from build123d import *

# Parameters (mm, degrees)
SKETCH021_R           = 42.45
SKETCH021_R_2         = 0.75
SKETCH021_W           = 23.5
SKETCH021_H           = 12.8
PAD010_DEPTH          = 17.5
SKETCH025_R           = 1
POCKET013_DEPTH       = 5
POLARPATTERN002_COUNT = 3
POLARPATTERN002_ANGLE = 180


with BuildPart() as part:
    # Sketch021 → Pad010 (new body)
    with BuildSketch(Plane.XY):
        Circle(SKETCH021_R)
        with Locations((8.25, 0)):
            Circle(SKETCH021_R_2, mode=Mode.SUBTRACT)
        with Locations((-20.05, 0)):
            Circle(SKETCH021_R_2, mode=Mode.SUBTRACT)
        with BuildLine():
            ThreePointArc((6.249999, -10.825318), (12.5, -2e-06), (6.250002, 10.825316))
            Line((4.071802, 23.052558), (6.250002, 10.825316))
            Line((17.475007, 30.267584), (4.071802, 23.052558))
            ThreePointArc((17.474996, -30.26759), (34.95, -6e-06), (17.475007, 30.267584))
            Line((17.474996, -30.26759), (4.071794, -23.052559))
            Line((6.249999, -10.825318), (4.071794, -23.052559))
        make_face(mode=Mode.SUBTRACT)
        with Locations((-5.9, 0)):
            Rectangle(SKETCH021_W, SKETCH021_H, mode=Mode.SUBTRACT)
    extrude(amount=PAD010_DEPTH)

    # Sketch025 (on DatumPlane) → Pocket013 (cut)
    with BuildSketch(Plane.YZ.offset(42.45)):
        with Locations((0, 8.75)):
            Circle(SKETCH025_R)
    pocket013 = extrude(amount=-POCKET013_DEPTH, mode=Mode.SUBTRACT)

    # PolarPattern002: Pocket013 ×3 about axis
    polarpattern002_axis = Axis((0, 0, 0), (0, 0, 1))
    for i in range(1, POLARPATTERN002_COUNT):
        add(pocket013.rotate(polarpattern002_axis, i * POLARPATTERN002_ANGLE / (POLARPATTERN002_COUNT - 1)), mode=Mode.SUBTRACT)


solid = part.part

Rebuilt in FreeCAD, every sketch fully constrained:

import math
import FreeCAD as App
import Part
import Sketcher


def add_polygon(sketch, points):
    """Adds a closed chain of lines whose ends are joined by coincident constraints."""
    first, n = sketch.GeometryCount, len(points)
    for a, b in zip(points, points[1:] + points[:1]):
        sketch.addGeometry(Part.LineSegment(App.Vector(*a, 0), App.Vector(*b, 0)), False)
    for i in range(n):
        sketch.addConstraint(Sketcher.Constraint("Coincident", first + i, 2, first + (i + 1) % n, 1))

doc = App.newDocument("Part")
body = doc.addObject("PartDesign::Body", "Body")

# Sketch on XY plane
sketch1 = doc.addObject("Sketcher::SketchObject", "Sketch")
body.addObject(sketch1)
sketch1.AttachmentSupport = (doc.XY_Plane, [""])
sketch1.MapMode = "FlatFace"
sketch1.addGeometry(Part.Circle(App.Vector(0, 0, 0), App.Vector(0, 0, 1), 42.45), False)  # 0
sketch1.addGeometry(Part.LineSegment(App.Vector(4.071794, -23.052559, 0), App.Vector(6.249999, -10.825318, 0)), False)  # 1
sketch1.addGeometry(Part.ArcOfCircle(Part.Circle(App.Vector(0, 0, 0), App.Vector(0, 0, 1), 12.5), math.radians(-60.000006), math.radians(59.999991)), False)  # 2
sketch1.addGeometry(Part.LineSegment(App.Vector(6.250002, 10.825316, 0), App.Vector(4.071802, 23.052558, 0)), False)  # 3
sketch1.addGeometry(Part.LineSegment(App.Vector(4.071802, 23.052558, 0), App.Vector(17.475007, 30.267584, 0)), False)  # 4
sketch1.addGeometry(Part.ArcOfCircle(Part.Circle(App.Vector(0, 0, 0), App.Vector(0, 0, 1), 34.95), math.radians(-60.000008), math.radians(59.999987)), False)  # 5
sketch1.addGeometry(Part.LineSegment(App.Vector(17.474996, -30.26759, 0), App.Vector(4.071794, -23.052559, 0)), False)  # 6
sketch1.addGeometry(Part.Circle(App.Vector(-20.05, 0, 0), App.Vector(0, 0, 1), 0.75), False)  # 7
add_polygon(sketch1, [(5.85, -6.4), (-17.65, -6.4), (-17.65, 6.4), (5.85, 6.4)])  # lines 8-11
sketch1.addGeometry(Part.Circle(App.Vector(8.25, 0, 0), App.Vector(0, 0, 1), 0.75), False)  # 12
sketch1.addConstraint([
    Sketcher.Constraint("Coincident", 1, 2, 2, 1),
    Sketcher.Constraint("Coincident", 2, 2, 3, 1),
    Sketcher.Constraint("Coincident", 3, 2, 4, 1),
    Sketcher.Constraint("Coincident", 4, 2, 5, 2),
    Sketcher.Constraint("Coincident", 5, 1, 6, 1),
    Sketcher.Constraint("Coincident", 6, 2, 1, 1),
    Sketcher.Constraint("Horizontal", 8),
    Sketcher.Constraint("Vertical", 9),
    Sketcher.Constraint("Horizontal", 10),
    Sketcher.Constraint("Vertical", 11),
    Sketcher.Constraint("Coincident", 0, 3, -1, 1),
    Sketcher.Constraint("Coincident", 2, 3, -1, 1),
    Sketcher.Constraint("Coincident", 5, 3, -1, 1),
    Sketcher.Constraint("Equal", 7, 12),
    Sketcher.Constraint("Symmetric", 3, 2, 6, 2, -1),
    Sketcher.Constraint("PointOnObject", 7, 3, -1),
    Sketcher.Constraint("PointOnObject", 12, 3, -1),
    Sketcher.Constraint("Equal", 1, 3),
    Sketcher.Constraint("Equal", 4, 6),
    Sketcher.Constraint("Diameter", 0, 84.9),
    Sketcher.Constraint("Diameter", 7, 1.5),
    Sketcher.Constraint("Radius", 2, 12.5),
    Sketcher.Constraint("Radius", 5, 34.95),
    Sketcher.Constraint("DistanceX", 8, 2, 8, 1, 23.5),
    Sketcher.Constraint("DistanceY", 9, 1, 9, 2, 12.8),
    Sketcher.Constraint("DistanceX", 1, 2, 12, 3, 2.000001),
    Sketcher.Constraint("DistanceY", 8, 2, -1, 1, 6.4),
    Sketcher.Constraint("DistanceX", 7, 3, 12, 3, 28.3),
    Sketcher.Constraint("DistanceX", 7, 3, 8, 2, 2.4),
    Sketcher.Constraint("DistanceX", 7, 3, -1, 1, 20.05),
    Sketcher.Constraint("DistanceX", 3, 2, 2, 2, 2.1782),
    Sketcher.Constraint("DistanceY", -1, 1, 3, 2, 23.052558),
    Sketcher.Constraint("DistanceY", 5, 1, -1, 1, 30.26759),
])
pad1 = doc.addObject("PartDesign::Pad", "Pad")
body.addObject(pad1)
pad1.Profile = sketch1
pad1.Length = 17.5

# Sketch on YZ plane
sketch2 = doc.addObject("Sketcher::SketchObject", "Sketch001")
body.addObject(sketch2)
sketch2.AttachmentSupport = (doc.YZ_Plane, [""])
sketch2.MapMode = "FlatFace"
sketch2.AttachmentOffset = App.Placement(App.Vector(0, 0, 42.45), App.Rotation())
sketch2.addGeometry(Part.Circle(App.Vector(0, 8.75, 0), App.Vector(0, 0, 1), 1), False)
sketch2.addConstraint([
    Sketcher.Constraint("PointOnObject", 0, 3, -2),
    Sketcher.Constraint("Diameter", 0, 2.0),
    Sketcher.Constraint("DistanceY", -1, 1, 0, 3, 8.75),
])
pocket1 = doc.addObject("PartDesign::Pocket", "Pocket")
body.addObject(pocket1)
pocket1.Profile = sketch2
pocket1.Length = 5
doc.recompute()

polarpattern = doc.addObject("PartDesign::PolarPattern", "PolarPattern")
body.addObject(polarpattern)
polarpattern.Originals = [pocket1]
polarpattern.Axis = (doc.Z_Axis, [""])
polarpattern.Angle = 180
polarpattern.Occurrences = 3
body.Tip = polarpattern

doc.recompute()
